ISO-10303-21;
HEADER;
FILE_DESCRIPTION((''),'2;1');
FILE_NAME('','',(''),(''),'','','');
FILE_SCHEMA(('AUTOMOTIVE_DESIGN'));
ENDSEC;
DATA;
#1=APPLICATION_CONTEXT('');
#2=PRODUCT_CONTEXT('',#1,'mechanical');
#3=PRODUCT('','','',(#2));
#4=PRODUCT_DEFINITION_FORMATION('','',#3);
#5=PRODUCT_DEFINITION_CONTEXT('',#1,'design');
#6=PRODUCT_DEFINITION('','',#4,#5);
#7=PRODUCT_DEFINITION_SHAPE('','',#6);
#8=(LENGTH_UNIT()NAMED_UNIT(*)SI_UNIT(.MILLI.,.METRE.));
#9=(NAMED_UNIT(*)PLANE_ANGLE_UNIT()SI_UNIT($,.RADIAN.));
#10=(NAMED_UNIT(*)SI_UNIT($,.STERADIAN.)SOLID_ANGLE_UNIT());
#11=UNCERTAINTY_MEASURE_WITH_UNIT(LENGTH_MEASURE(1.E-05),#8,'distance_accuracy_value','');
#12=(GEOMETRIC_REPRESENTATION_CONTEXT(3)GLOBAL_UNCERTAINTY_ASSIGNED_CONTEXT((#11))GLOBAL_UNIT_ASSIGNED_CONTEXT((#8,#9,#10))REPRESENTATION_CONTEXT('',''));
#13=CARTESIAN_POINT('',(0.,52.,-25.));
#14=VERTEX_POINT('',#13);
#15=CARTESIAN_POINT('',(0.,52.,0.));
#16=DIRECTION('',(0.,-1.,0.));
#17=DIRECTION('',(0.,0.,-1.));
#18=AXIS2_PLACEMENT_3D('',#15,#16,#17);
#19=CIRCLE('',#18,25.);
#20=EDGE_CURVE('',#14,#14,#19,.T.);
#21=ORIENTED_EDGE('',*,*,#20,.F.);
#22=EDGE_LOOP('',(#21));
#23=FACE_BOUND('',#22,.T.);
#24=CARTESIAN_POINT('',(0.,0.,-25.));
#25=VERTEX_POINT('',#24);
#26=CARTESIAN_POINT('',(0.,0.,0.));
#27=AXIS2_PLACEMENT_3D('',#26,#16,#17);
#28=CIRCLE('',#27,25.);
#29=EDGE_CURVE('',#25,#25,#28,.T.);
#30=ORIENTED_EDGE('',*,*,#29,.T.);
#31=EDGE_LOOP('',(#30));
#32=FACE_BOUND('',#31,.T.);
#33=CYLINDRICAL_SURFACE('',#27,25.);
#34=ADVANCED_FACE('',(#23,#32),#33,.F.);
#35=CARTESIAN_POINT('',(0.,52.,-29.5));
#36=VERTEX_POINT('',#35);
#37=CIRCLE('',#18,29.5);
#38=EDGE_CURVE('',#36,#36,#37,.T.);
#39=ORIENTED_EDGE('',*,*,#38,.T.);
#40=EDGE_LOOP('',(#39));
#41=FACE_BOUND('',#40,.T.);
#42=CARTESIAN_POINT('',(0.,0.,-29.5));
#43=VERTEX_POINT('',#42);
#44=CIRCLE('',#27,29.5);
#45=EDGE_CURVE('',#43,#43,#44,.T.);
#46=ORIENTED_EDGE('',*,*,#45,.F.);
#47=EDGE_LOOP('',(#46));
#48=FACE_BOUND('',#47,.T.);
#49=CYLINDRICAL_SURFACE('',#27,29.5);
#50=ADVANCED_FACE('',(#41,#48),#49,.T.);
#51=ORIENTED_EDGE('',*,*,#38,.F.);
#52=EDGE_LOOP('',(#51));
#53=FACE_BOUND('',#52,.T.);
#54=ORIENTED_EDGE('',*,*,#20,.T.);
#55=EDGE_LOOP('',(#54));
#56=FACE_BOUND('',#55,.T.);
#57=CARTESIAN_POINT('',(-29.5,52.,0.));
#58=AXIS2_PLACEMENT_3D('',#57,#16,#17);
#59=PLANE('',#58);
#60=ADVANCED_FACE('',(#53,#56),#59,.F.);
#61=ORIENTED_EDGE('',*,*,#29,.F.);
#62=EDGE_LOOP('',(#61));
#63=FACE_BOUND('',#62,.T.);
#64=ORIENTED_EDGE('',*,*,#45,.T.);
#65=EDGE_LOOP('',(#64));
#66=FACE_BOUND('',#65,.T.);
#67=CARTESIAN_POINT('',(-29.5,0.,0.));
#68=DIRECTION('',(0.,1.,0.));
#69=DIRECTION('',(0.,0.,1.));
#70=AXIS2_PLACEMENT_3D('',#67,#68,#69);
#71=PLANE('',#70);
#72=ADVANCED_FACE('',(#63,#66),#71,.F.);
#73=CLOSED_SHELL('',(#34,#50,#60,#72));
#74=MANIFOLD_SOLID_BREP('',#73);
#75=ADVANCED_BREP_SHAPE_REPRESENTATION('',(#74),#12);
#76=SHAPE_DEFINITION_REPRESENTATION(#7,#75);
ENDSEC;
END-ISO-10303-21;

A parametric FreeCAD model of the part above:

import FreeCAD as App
import Part
import Sketcher
from FreeCAD import Vector
Q = App.Units.Quantity


def add_polygon(sketch, points):
    """Adds a closed chain of lines whose ends are joined by coincident constraints."""
    first, n = sketch.GeometryCount, len(points)
    for a, b in zip(points, points[1:] + points[:1]):
        sketch.addGeometry(Part.LineSegment(App.Vector(*a, 0), App.Vector(*b, 0)), False)
    for i in range(n):
        sketch.addConstraint(Sketcher.Constraint("Coincident", first + i, 2, first + (i + 1) % n, 1))

doc = App.newDocument("Part")
params = doc.addObject("Spreadsheet::Sheet", "Params")
for row, (alias, value) in enumerate([
    ("sketch1_height", "52 mm"),
    ("sketch1_width", "4.5 mm"),
    ("revolution_angle", "360 deg"),
], start=1):
    params.set(f"A{row}", alias)
    params.set(f"B{row}", "=" + value)
    params.setAlias(f"B{row}", alias)

body = doc.addObject("PartDesign::Body", "Body")

# Sketch on XY plane
sketch1 = body.newObject("Sketcher::SketchObject", "Sketch")
sketch1.AttachmentSupport = (doc.getObject("XY_Plane"), [""])
sketch1.MapMode = "FlatFace"
add_polygon(sketch1, [(-29.5, 52), (-29.5, 0), (-25, 0), (-25, 52)])  # lines 0-3
sketch1.addConstraint([
    Sketcher.Constraint("Vertical", 0),
    Sketcher.Constraint("Horizontal", 1),
    Sketcher.Constraint("Vertical", 2),
    Sketcher.Constraint("Horizontal", 3),
    Sketcher.Constraint("PointOnObject", 0, 2, -1),
    Sketcher.Constraint("DistanceY", 0, 2, 0, 1, Q("52 mm")),
    Sketcher.Constraint("DistanceX", 1, 1, 1, 2, Q("4.5 mm")),
    Sketcher.Constraint("DistanceX", 1, 2, -1, 1, Q("25 mm")),
])
sketch1.setExpression("Constraints[9]", "Params.sketch1_height")
sketch1.setExpression("Constraints[10]", "Params.sketch1_width")
revolution = body.newObject("PartDesign::Revolution", "Revolution")
revolution.Profile = sketch1
revolution.ReferenceAxis = (sketch1, ["V_Axis"])
revolution.setExpression("Angle", "Params.revolution_angle")

doc.recompute()
